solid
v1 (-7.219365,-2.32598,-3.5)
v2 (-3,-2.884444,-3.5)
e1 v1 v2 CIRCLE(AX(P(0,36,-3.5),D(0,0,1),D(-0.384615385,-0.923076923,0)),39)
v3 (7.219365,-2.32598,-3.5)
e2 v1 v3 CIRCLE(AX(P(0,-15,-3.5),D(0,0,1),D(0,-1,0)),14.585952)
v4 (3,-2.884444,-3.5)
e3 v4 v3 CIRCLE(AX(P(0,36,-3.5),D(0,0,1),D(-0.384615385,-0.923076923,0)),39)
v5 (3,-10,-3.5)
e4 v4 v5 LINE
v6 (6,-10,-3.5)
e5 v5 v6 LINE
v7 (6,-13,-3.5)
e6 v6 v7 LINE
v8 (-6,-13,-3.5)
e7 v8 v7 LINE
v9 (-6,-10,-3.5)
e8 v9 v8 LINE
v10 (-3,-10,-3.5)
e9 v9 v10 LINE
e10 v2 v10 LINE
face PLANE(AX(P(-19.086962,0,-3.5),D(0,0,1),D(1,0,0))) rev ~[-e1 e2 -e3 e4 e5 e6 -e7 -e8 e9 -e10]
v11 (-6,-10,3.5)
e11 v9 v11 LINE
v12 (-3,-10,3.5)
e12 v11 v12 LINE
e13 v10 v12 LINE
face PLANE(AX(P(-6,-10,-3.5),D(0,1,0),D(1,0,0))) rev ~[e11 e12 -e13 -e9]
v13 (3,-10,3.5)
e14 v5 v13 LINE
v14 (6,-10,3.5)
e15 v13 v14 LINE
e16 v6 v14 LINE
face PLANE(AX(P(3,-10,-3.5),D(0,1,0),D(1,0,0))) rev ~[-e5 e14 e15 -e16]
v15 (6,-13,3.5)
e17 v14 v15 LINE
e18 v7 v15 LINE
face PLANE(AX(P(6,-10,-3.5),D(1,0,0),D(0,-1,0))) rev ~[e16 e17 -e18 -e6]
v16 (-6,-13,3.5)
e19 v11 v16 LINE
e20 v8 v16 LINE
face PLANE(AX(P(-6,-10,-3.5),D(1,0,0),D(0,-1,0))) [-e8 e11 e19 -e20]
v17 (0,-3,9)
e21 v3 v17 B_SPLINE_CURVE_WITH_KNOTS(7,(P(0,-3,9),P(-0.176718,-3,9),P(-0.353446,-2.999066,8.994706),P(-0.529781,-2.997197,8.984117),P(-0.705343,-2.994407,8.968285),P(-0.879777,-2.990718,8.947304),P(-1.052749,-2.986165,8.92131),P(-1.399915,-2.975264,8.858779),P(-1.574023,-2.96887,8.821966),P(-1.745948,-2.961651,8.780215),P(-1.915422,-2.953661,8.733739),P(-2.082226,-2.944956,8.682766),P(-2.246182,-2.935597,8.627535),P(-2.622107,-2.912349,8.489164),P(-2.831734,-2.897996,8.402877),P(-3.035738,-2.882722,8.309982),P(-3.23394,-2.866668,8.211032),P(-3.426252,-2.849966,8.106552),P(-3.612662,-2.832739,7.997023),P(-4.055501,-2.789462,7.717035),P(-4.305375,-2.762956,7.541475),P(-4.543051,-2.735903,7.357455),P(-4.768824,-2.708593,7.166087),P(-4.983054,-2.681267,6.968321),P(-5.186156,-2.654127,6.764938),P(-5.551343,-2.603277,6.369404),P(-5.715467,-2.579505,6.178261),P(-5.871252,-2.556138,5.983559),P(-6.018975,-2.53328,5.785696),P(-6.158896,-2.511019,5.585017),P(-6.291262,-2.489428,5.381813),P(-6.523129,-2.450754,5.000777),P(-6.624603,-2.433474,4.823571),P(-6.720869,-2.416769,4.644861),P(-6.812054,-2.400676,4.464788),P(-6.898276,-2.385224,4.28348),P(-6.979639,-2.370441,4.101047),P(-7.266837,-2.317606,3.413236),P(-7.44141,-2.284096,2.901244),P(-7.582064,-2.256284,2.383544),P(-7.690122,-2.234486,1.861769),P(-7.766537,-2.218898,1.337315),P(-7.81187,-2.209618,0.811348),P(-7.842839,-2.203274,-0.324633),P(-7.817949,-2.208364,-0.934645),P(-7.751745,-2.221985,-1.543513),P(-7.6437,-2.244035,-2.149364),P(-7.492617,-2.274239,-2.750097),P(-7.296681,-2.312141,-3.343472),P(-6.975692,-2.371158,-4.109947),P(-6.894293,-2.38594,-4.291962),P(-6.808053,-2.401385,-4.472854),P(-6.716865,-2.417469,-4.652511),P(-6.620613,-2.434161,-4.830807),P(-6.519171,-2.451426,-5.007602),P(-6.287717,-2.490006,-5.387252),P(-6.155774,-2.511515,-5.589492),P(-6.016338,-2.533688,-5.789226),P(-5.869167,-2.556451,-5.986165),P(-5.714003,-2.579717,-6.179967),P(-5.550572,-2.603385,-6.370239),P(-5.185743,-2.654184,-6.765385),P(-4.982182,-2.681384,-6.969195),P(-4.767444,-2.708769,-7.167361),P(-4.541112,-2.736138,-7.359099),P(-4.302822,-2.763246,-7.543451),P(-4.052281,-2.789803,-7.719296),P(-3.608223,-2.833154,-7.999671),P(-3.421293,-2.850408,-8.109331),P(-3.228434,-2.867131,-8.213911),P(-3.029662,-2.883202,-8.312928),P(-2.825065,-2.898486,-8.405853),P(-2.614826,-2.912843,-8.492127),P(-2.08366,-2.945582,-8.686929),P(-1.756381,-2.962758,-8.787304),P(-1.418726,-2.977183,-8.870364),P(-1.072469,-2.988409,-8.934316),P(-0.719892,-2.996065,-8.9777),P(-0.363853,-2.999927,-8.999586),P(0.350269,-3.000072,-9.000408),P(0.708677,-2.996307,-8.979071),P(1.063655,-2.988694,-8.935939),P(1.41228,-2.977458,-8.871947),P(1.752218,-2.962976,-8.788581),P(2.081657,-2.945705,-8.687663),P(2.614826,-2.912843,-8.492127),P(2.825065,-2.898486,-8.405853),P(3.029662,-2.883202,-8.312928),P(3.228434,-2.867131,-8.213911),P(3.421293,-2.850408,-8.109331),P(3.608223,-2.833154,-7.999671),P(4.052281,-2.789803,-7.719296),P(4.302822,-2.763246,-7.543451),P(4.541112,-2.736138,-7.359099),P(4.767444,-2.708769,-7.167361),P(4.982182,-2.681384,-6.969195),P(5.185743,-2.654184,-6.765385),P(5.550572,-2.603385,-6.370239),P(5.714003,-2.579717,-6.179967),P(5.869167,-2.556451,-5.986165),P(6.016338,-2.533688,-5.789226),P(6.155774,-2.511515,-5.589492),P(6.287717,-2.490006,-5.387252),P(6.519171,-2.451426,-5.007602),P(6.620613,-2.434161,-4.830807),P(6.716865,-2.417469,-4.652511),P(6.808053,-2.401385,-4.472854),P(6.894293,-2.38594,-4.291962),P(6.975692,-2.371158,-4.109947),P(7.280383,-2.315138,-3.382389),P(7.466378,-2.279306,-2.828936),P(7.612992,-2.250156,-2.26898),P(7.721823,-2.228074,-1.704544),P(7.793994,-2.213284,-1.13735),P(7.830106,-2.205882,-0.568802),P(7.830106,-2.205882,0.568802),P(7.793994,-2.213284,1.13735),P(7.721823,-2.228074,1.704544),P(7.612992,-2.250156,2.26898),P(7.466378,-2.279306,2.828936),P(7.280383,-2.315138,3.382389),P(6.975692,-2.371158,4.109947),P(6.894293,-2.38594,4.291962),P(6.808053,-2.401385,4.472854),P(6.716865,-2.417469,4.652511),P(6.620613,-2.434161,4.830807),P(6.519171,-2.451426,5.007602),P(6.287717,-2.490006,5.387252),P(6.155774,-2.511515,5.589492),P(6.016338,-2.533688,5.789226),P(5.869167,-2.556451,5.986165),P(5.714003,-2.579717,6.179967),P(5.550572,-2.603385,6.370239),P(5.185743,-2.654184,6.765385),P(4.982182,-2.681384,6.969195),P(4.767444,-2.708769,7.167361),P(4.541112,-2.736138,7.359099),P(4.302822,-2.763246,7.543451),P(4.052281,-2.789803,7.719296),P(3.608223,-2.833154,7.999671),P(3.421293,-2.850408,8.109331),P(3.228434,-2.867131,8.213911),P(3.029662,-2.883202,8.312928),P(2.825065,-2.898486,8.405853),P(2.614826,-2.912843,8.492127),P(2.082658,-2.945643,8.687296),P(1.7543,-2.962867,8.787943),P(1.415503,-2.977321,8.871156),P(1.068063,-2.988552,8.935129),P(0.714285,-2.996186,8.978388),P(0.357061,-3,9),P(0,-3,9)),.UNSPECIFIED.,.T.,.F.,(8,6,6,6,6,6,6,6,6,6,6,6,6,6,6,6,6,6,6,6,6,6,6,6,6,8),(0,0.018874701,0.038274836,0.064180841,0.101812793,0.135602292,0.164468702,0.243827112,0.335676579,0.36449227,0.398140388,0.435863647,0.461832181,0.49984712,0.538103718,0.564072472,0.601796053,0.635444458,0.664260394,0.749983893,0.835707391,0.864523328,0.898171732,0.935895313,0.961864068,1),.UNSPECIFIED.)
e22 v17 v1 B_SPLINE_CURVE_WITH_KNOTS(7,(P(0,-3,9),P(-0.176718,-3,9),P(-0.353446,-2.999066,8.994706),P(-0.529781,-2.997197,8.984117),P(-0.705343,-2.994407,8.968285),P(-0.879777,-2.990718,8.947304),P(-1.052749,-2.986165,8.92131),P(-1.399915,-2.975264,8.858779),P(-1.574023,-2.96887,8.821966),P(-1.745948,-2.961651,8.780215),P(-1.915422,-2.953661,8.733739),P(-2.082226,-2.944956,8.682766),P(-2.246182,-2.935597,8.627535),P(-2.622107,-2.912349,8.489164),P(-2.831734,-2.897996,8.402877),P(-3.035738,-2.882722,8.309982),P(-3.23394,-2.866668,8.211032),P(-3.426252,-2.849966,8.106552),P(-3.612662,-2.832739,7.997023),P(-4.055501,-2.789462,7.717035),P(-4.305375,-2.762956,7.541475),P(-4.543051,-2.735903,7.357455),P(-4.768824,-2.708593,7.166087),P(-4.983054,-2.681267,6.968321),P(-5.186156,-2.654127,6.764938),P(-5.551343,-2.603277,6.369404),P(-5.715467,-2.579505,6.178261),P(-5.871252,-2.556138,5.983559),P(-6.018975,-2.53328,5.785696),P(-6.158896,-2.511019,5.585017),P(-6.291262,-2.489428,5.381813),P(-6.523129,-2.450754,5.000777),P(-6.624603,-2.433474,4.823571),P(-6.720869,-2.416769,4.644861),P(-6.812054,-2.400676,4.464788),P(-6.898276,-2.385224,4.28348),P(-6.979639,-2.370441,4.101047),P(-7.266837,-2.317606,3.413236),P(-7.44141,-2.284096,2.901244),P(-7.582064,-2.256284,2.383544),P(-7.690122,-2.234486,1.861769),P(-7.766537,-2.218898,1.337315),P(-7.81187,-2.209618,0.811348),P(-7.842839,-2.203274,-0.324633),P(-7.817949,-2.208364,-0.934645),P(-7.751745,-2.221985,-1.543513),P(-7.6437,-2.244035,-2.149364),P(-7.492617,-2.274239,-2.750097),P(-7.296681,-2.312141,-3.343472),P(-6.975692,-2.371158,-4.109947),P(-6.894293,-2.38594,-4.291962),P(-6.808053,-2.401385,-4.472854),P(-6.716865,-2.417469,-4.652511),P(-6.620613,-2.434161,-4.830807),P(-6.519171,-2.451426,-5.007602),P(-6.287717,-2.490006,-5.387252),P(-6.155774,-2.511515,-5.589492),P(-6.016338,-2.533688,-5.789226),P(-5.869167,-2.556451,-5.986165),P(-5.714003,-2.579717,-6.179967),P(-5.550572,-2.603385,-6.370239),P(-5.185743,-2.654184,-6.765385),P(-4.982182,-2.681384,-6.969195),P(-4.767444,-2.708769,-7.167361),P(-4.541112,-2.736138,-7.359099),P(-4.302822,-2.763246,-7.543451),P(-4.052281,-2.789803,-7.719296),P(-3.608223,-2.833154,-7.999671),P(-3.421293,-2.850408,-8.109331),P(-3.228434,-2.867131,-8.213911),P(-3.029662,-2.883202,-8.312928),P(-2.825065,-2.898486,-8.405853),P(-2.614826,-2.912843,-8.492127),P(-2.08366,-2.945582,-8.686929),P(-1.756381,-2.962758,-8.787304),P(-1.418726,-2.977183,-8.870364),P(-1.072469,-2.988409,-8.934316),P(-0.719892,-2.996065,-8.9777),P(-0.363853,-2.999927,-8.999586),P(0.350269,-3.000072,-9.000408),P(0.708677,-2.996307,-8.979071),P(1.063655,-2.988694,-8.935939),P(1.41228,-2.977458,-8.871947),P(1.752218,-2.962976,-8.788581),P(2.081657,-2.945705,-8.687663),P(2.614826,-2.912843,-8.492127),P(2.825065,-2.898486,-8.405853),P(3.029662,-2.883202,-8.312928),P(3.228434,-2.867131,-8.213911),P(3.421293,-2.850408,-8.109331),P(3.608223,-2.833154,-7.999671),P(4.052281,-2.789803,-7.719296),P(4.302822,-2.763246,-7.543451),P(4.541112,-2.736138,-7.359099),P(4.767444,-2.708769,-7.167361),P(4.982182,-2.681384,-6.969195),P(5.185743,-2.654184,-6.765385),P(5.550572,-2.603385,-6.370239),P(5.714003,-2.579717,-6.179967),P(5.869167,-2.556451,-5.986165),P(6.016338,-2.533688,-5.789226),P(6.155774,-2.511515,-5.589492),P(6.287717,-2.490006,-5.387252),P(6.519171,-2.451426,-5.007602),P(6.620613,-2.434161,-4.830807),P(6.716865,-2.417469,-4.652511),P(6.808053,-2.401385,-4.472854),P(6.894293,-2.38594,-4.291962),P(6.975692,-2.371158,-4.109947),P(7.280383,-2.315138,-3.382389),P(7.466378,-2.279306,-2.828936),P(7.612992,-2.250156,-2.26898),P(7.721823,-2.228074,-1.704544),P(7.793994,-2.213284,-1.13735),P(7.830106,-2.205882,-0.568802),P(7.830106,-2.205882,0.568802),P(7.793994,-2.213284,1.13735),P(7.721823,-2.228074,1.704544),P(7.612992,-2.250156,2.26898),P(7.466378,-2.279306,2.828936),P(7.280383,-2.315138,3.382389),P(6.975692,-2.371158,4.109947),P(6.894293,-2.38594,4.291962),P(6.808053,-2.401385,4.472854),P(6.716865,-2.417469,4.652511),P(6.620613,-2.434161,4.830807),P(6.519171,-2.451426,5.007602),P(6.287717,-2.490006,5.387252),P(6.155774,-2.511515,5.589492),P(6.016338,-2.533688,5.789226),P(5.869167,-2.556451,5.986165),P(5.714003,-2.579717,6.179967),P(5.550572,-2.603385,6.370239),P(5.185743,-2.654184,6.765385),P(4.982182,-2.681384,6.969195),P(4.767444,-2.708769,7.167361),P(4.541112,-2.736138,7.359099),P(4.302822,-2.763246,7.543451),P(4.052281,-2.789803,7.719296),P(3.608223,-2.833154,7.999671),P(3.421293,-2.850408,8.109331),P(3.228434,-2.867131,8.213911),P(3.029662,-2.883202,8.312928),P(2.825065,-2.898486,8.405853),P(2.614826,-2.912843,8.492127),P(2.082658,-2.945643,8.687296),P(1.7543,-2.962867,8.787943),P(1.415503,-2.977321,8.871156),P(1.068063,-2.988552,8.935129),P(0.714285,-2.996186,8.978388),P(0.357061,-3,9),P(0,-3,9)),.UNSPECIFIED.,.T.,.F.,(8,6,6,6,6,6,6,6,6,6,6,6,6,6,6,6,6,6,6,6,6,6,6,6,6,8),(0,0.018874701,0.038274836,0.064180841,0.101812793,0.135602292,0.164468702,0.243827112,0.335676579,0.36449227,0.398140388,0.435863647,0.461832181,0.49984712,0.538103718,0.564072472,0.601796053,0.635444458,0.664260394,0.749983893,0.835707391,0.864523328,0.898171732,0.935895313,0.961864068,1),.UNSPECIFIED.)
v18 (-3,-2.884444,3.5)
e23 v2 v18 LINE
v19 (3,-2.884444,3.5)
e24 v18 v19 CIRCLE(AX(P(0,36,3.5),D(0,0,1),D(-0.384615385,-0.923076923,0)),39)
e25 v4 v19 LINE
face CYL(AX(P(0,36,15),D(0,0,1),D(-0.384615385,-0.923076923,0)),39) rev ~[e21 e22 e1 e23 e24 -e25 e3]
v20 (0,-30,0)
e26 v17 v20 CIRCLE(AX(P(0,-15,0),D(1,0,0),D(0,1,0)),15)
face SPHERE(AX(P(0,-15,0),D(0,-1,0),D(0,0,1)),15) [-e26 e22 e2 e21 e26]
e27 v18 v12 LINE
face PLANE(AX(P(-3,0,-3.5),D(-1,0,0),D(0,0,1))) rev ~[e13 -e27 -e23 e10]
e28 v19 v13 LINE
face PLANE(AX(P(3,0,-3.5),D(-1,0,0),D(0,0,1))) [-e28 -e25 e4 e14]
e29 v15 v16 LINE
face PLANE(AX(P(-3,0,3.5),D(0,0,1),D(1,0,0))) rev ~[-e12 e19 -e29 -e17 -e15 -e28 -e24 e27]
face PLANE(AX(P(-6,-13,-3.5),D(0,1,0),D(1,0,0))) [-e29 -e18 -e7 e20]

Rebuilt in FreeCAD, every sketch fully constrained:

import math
import FreeCAD as App
import Part
import Sketcher

V = App.Vector

doc = App.newDocument("Part")
body = doc.addObject("PartDesign::Body", "Body")

# Sketch on YZ plane
sketch1 = body.newObject("Sketcher::SketchObject", "Sketch")
sketch1.AttachmentSupport = (doc.getObject("YZ_Plane"), [""])
sketch1.MapMode = "FlatFace"
sketch1.addGeometry(Part.LineSegment(V(-30, 0, 0), V(0, 0, 0)), False)
sketch1.addGeometry(Part.ArcOfCircle(Part.Circle(V(-15, 0, 0), V(0, 0, 1), 15), math.radians(0), math.radians(180)), False)
sketch1.addConstraint(Sketcher.Constraint("Coincident", 0, 1, 1, 2))
sketch1.addConstraint(Sketcher.Constraint("Coincident", 1, 1, 0, 2))
sketch1.addConstraint(Sketcher.Constraint("Horizontal", 0))
sketch1.addConstraint(Sketcher.Constraint("Coincident", 1, 1, -1, 1))
sketch1.addConstraint(Sketcher.Constraint("PointOnObject", 1, 3, -1))
sketch1.addConstraint(Sketcher.Constraint("Radius", 1, 15.0))
revolution = body.newObject("PartDesign::Revolution", "Revolution")
revolution.Profile = sketch1
revolution.ReferenceAxis = (sketch1, ["H_Axis"])
revolution.Angle = 360

# Sketch on XY plane
sketch2 = body.newObject("Sketcher::SketchObject", "Sketch001")
sketch2.AttachmentSupport = (doc.getObject("XY_Plane"), [""])
sketch2.MapMode = "FlatFace"
sketch2.AttachmentOffset = App.Placement(V(0, 0, 15), App.Rotation())
sketch2.addGeometry(Part.LineSegment(V(15, 0, 0), V(-15, 0, 0)), False)
sketch2.addGeometry(Part.ArcOfCircle(Part.Circle(V(0, 36, 0), V(0, 0, 1), 39), math.radians(-113), math.radians(-67)), False)
sketch2.addConstraint(Sketcher.Constraint("Coincident", 0, 1, 1, 2))
sketch2.addConstraint(Sketcher.Constraint("Coincident", 1, 1, 0, 2))
sketch2.addConstraint(Sketcher.Constraint("Horizontal", 0))
sketch2.addConstraint(Sketcher.Constraint("Symmetric", 0, 1, 1, 1, -1, 1))
sketch2.addConstraint(Sketcher.Constraint("Radius", 1, 39.0))
sketch2.addConstraint(Sketcher.Constraint("DistanceX", 0, 2, 0, 1, 30.0))
pocket1 = body.newObject("PartDesign::Pocket", "Pocket")
pocket1.Profile = sketch2
pocket1.Type = "ThroughAll"

# Sketch on XZ plane
sketch3 = body.newObject("Sketcher::SketchObject", "Sketch002")
sketch3.AttachmentSupport = (doc.getObject("XZ_Plane"), [""])
sketch3.MapMode = "FlatFace"
sketch3.addGeometry(Part.LineSegment(V(-3, 4, 0), V(-3, -4, 0)), False)
sketch3.addGeometry(Part.LineSegment(V(-3, -4, 0), V(3, -4, 0)), False)
sketch3.addGeometry(Part.LineSegment(V(3, -4, 0), V(3, 4, 0)), False)
sketch3.addGeometry(Part.LineSegment(V(3, 4, 0), V(-3, 4, 0)), False)
sketch3.addConstraint(Sketcher.Constraint("Coincident", 0, 2, 1, 1))
sketch3.addConstraint(Sketcher.Constraint("Coincident", 1, 2, 2, 1))
sketch3.addConstraint(Sketcher.Constraint("Coincident", 2, 2, 3, 1))
sketch3.addConstraint(Sketcher.Constraint("Coincident", 3, 2, 0, 1))
sketch3.addConstraint(Sketcher.Constraint("Vertical", 0))
sketch3.addConstraint(Sketcher.Constraint("Horizontal", 1))
sketch3.addConstraint(Sketcher.Constraint("Vertical", 2))
sketch3.addConstraint(Sketcher.Constraint("Horizontal", 3))
sketch3.addConstraint(Sketcher.Constraint("Symmetric", 0, 2, 2, 2, -1, 1))
sketch3.addConstraint(Sketcher.Constraint("DistanceX", 1, 1, 1, 2, 6.0))
sketch3.addConstraint(Sketcher.Constraint("DistanceY", 0, 2, 0, 1, 7.0))
pocket2 = body.newObject("PartDesign::Pocket", "Pocket001")
pocket2.Profile = sketch3
pocket2.Length = 13
pocket2.Reversed = True

# Sketch on XZ plane
sketch4 = body.newObject("Sketcher::SketchObject", "Sketch003")
sketch4.AttachmentSupport = (doc.getObject("XZ_Plane"), [""])
sketch4.MapMode = "FlatFace"
sketch4.addGeometry(Part.LineSegment(V(-19, -4, 0), V(-19, -24, 0)), False)
sketch4.addGeometry(Part.LineSegment(V(-19, -24, 0), V(19, -24, 0)), False)
sketch4.addGeometry(Part.LineSegment(V(19, -24, 0), V(19, -4, 0)), False)
sketch4.addGeometry(Part.LineSegment(V(19, -4, 0), V(-19, -4, 0)), False)
sketch4.addConstraint(Sketcher.Constraint("Coincident", 0, 2, 1, 1))
sketch4.addConstraint(Sketcher.Constraint("Coincident", 1, 2, 2, 1))
sketch4.addConstraint(Sketcher.Constraint("Coincident", 2, 2, 3, 1))
sketch4.addConstraint(Sketcher.Constraint("Coincident", 3, 2, 0, 1))
sketch4.addConstraint(Sketcher.Constraint("Vertical", 0))
sketch4.addConstraint(Sketcher.Constraint("Horizontal", 1))
sketch4.addConstraint(Sketcher.Constraint("Vertical", 2))
sketch4.addConstraint(Sketcher.Constraint("Horizontal", 3))
sketch4.addConstraint(Sketcher.Constraint("DistanceY", 0, 2, 0, 1, 20.0))
sketch4.addConstraint(Sketcher.Constraint("DistanceY", 0, 2, -1, 1, 23.5))
sketch4.addConstraint(Sketcher.Constraint("DistanceX", 1, 1, 1, 2, 38.173924))
sketch4.addConstraint(Sketcher.Constraint("DistanceX", 0, 2, -1, 1, 19.086962))
pocket3 = body.newObject("PartDesign::Pocket", "Pocket002")
pocket3.Profile = sketch4
pocket3.Type = "ThroughAll"
pocket3.Reversed = True

# Sketch on XY plane
sketch5 = body.newObject("Sketcher::SketchObject", "Sketch004")
sketch5.AttachmentSupport = (doc.getObject("XY_Plane"), [""])
sketch5.MapMode = "FlatFace"
sketch5.AttachmentOffset = App.Placement(V(0, 0, -3.5), App.Rotation())
sketch5.addGeometry(Part.LineSegment(V(-6, -13, 0), V(-6, -10, 0)), False)
sketch5.addGeometry(Part.LineSegment(V(-6, -10, 0), V(-3, -10, 0)), False)
sketch5.addGeometry(Part.LineSegment(V(-3, -10, 0), V(-3, -13, 0)), False)
sketch5.addGeometry(Part.LineSegment(V(-3, -13, 0), V(-6, -13, 0)), False)
sketch5.addGeometry(Part.LineSegment(V(3, -13, 0), V(3, -10, 0)), False)
sketch5.addGeometry(Part.LineSegment(V(3, -10, 0), V(6, -10, 0)), False)
sketch5.addGeometry(Part.LineSegment(V(6, -10, 0), V(6, -13, 0)), False)
sketch5.addGeometry(Part.LineSegment(V(6, -13, 0), V(3, -13, 0)), False)
sketch5.addConstraint(Sketcher.Constraint("Coincident", 0, 2, 1, 1))
sketch5.addConstraint(Sketcher.Constraint("Coincident", 1, 2, 2, 1))
sketch5.addConstraint(Sketcher.Constraint("Coincident", 2, 2, 3, 1))
sketch5.addConstraint(Sketcher.Constraint("Coincident", 3, 2, 0, 1))
sketch5.addConstraint(Sketcher.Constraint("Coincident", 4, 2, 5, 1))
sketch5.addConstraint(Sketcher.Constraint("Coincident", 5, 2, 6, 1))
sketch5.addConstraint(Sketcher.Constraint("Coincident", 6, 2, 7, 1))
sketch5.addConstraint(Sketcher.Constraint("Coincident", 7, 2, 4, 1))
sketch5.addConstraint(Sketcher.Constraint("Vertical", 0))
sketch5.addConstraint(Sketcher.Constraint("Horizontal", 1))
sketch5.addConstraint(Sketcher.Constraint("Vertical", 2))
sketch5.addConstraint(Sketcher.Constraint("Horizontal", 3))
sketch5.addConstraint(Sketcher.Constraint("Vertical", 4))
sketch5.addConstraint(Sketcher.Constraint("Horizontal", 5))
sketch5.addConstraint(Sketcher.Constraint("Vertical", 6))
sketch5.addConstraint(Sketcher.Constraint("Horizontal", 7))
sketch5.addConstraint(Sketcher.Constraint("Symmetric", 1, 2, 4, 2, -2))
sketch5.addConstraint(Sketcher.Constraint("Symmetric", 3, 2, 6, 2, -2))
sketch5.addConstraint(Sketcher.Constraint("Equal", 7, 0))
sketch5.addConstraint(Sketcher.Constraint("DistanceX", 1, 1, 1, 2, 3.0))
sketch5.addConstraint(Sketcher.Constraint("DistanceX", 0, 2, -1, 1, 6.0))
sketch5.addConstraint(Sketcher.Constraint("DistanceY", 0, 2, -1, 1, 10.0))
pocket4 = body.newObject("PartDesign::Pocket", "Pocket003")
pocket4.Profile = sketch5
pocket4.Length = 7
pocket4.Reversed = True

# Sketch on XZ plane
sketch6 = body.newObject("Sketcher::SketchObject", "Sketch005")
sketch6.AttachmentSupport = (doc.getObject("XZ_Plane"), [""])
sketch6.MapMode = "FlatFace"
sketch6.addGeometry(Part.LineSegment(V(-19, -4, 0), V(-19, -24, 0)), False)
sketch6.addGeometry(Part.LineSegment(V(-19, -24, 0), V(19, -24, 0)), False)
sketch6.addGeometry(Part.LineSegment(V(19, -24, 0), V(19, -4, 0)), False)
sketch6.addGeometry(Part.LineSegment(V(19, -4, 0), V(-19, -4, 0)), False)
sketch6.addConstraint(Sketcher.Constraint("Coincident", 0, 2, 1, 1))
sketch6.addConstraint(Sketcher.Constraint("Coincident", 1, 2, 2, 1))
sketch6.addConstraint(Sketcher.Constraint("Coincident", 2, 2, 3, 1))
sketch6.addConstraint(Sketcher.Constraint("Coincident", 3, 2, 0, 1))
sketch6.addConstraint(Sketcher.Constraint("Vertical", 0))
sketch6.addConstraint(Sketcher.Constraint("Horizontal", 1))
sketch6.addConstraint(Sketcher.Constraint("Vertical", 2))
sketch6.addConstraint(Sketcher.Constraint("Horizontal", 3))
sketch6.addConstraint(Sketcher.Constraint("DistanceY", 0, 2, 0, 1, 20.0))
sketch6.addConstraint(Sketcher.Constraint("DistanceY", 0, 2, -1, 1, 23.5))
sketch6.addConstraint(Sketcher.Constraint("DistanceX", 1, 1, 1, 2, 38.173924))
sketch6.addConstraint(Sketcher.Constraint("DistanceX", 0, 2, -1, 1, 19.086962))
pocket5 = body.newObject("PartDesign::Pocket", "Pocket004")
pocket5.Profile = sketch6
pocket5.Type = "ThroughAll"
pocket5.Reversed = True

doc.recompute()
